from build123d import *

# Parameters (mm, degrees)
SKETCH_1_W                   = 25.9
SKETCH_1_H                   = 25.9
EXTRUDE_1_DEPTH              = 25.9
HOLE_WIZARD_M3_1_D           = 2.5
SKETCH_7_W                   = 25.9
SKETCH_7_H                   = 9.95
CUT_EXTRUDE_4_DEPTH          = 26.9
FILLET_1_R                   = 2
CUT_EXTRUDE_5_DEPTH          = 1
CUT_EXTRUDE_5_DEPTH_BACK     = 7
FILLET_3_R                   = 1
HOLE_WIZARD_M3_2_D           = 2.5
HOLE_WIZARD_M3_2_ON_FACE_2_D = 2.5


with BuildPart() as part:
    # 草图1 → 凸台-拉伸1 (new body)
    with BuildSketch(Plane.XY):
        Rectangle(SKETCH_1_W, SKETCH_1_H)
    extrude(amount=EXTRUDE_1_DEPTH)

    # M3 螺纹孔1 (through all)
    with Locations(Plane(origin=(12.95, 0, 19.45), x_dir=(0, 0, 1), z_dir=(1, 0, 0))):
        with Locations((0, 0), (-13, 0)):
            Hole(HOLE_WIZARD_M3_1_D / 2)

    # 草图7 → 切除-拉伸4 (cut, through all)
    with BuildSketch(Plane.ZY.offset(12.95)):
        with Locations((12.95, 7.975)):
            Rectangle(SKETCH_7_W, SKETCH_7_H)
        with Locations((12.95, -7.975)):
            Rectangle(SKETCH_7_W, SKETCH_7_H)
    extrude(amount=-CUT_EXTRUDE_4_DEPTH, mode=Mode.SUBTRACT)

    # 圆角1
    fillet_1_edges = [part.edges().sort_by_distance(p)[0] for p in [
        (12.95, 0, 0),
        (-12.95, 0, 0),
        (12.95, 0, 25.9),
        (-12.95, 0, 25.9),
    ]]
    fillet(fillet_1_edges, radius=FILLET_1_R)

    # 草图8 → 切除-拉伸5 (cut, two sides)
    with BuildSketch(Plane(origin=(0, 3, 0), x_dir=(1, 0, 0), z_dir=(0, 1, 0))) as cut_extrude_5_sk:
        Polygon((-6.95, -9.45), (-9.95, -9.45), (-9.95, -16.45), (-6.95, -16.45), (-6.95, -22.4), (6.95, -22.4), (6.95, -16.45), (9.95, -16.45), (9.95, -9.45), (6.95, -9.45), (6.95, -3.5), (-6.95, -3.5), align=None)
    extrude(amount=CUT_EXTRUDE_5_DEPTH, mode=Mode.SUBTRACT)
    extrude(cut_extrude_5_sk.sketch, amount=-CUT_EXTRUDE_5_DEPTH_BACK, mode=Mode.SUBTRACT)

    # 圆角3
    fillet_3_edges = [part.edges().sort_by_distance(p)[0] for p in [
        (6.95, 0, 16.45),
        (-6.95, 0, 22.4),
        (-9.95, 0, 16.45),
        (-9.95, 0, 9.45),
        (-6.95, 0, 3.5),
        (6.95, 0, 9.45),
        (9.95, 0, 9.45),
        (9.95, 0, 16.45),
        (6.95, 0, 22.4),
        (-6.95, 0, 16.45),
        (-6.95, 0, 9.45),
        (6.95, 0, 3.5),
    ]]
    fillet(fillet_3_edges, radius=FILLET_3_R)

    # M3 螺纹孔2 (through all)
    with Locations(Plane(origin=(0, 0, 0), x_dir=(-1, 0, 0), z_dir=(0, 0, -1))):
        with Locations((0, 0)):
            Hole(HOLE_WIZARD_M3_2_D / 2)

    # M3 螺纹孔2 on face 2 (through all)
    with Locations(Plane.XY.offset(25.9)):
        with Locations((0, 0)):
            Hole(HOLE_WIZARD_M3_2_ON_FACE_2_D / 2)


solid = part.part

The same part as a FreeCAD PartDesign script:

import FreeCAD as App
import Part
import Sketcher
from FreeCAD import Vector


def edges_at(feature, points):
    """Names of the edges that pass closest to the given points."""
    edges = feature.Shape.Edges
    near = lambda p: min(range(len(edges)), key=lambda i: edges[i].distToShape(Part.Vertex(*p))[0])
    return sorted({f"Edge{near(p) + 1}" for p in points})


def add_polygon(sketch, points):
    """Adds a closed chain of lines whose ends are joined by coincident constraints."""
    first, n = sketch.GeometryCount, len(points)
    for a, b in zip(points, points[1:] + points[:1]):
        sketch.addGeometry(Part.LineSegment(App.Vector(*a, 0), App.Vector(*b, 0)), False)
    for i in range(n):
        sketch.addConstraint(Sketcher.Constraint("Coincident", first + i, 2, first + (i + 1) % n, 1))

doc = App.newDocument("Part")
body = doc.addObject("PartDesign::Body", "Body")

sketch1 = doc.addObject("Sketcher::SketchObject", "Sketch")
body.addObject(sketch1)
sketch1.AttachmentSupport = (doc.XY_Plane, [""])
sketch1.MapMode = "FlatFace"
add_polygon(sketch1, [(-12.95, 12.95), (-12.95, -12.95), (12.95, -12.95), (12.95, 12.95)])
sketch1.addConstraint([
    Sketcher.Constraint("Vertical", 0),
    Sketcher.Constraint("Horizontal", 1),
    Sketcher.Constraint("Vertical", 2),
    Sketcher.Constraint("Horizontal", 3),
    Sketcher.Constraint("Symmetric", 0, 2, 2, 2, -1, 1),
    Sketcher.Constraint("Equal", 3, 0),
    Sketcher.Constraint("DistanceX", 1, 1, 1, 2, 25.9),
])
pad1 = doc.addObject("PartDesign::Pad", "Pad")
body.addObject(pad1)
pad1.Profile = sketch1
pad1.Length = 25.9

sketch2 = doc.addObject("Sketcher::SketchObject", "Sketch001")
body.addObject(sketch2)
sketch2.AttachmentSupport = (doc.YZ_Plane, [""])
sketch2.MapMode = "FlatFace"
sketch2.AttachmentOffset = App.Placement(Vector(0, 0, 12.95), App.Rotation())
sketch2.addGeometry([
    Part.Circle(Vector(0, 19.45, 0), Vector(0, 0, 1), 1.25),
    Part.Circle(Vector(0, 6.45, 0), Vector(0, 0, 1), 1.25),
], False)
sketch2.addConstraint([
    Sketcher.Constraint("Equal", 0, 1),
    Sketcher.Constraint("PointOnObject", 0, 3, -2),
    Sketcher.Constraint("PointOnObject", 1, 3, -2),
    Sketcher.Constraint("Diameter", 0, 2.5),
    Sketcher.Constraint("DistanceY", 1, 3, 0, 3, 13.0),
    Sketcher.Constraint("DistanceY", -1, 1, 0, 3, 19.45),
])
doc.recompute()
hole = doc.addObject("PartDesign::Hole", "Hole")
body.addObject(hole)
hole.Profile = sketch2
hole.ThreadType = "None"
hole.Diameter = 2.5
hole.DepthType = "ThroughAll"

sketch3 = doc.addObject("Sketcher::SketchObject", "Sketch002")
body.addObject(sketch3)
sketch3.AttachmentSupport = (doc.YZ_Plane, [""])
sketch3.MapMode = "FlatFace"
sketch3.AttachmentOffset = App.Placement(Vector(0, 0, -12.95), App.Rotation())
add_polygon(sketch3, [(12.95, 0), (3, 0), (3, 25.9), (12.95, 25.9)])
add_polygon(sketch3, [(-3, 0), (-12.95, 0), (-12.95, 25.9), (-3, 25.9)])
sketch3.addConstraint([
    Sketcher.Constraint("Horizontal", 0),
    Sketcher.Constraint("Vertical", 1),
    Sketcher.Constraint("Horizontal", 2),
    Sketcher.Constraint("Vertical", 3),
    Sketcher.Constraint("Horizontal", 4),
    Sketcher.Constraint("Vertical", 5),
    Sketcher.Constraint("Horizontal", 6),
    Sketcher.Constraint("Vertical", 7),
    Sketcher.Constraint("Symmetric", 3, 2, 4, 2, -1, 1),
    Sketcher.Constraint("Symmetric", 1, 2, 6, 2, -2),
    Sketcher.Constraint("PointOnObject", 0, 2, -1),
    Sketcher.Constraint("DistanceY", 1, 1, 1, 2, 25.9),
    Sketcher.Constraint("DistanceX", -1, 1, 0, 2, 3.0),
    Sketcher.Constraint("DistanceX", 0, 2, 0, 1, 9.95),
])
pocket1 = doc.addObject("PartDesign::Pocket", "Pocket")
body.addObject(pocket1)
pocket1.Profile = sketch3
pocket1.Type = "ThroughAll"
pocket1.Reversed = True
doc.recompute()

fillet = doc.addObject("PartDesign::Fillet", "Fillet")
body.addObject(fillet)
fillet.Base = (pocket1, edges_at(pocket1, [
    (12.95, 0, 0),
    (-12.95, 0, 0),
    (12.95, 0, 25.9),
    (-12.95, 0, 25.9),
]))
fillet.Radius = 2

sketch4 = doc.addObject("Sketcher::SketchObject", "Sketch003")
body.addObject(sketch4)
sketch4.AttachmentSupport = (doc.XZ_Plane, [""])
sketch4.MapMode = "FlatFace"
sketch4.AttachmentOffset = App.Placement(Vector(0, 0, -3), App.Rotation())
add_polygon(sketch4, [(-6.95, 9.45), (-9.95, 9.45), (-9.95, 16.45), (-6.95, 16.45), (-6.95, 22.4), (6.95, 22.4), (6.95, 16.45), (9.95, 16.45), (9.95, 9.45), (6.95, 9.45), (6.95, 3.5), (-6.95, 3.5)])
sketch4.addConstraint([
    Sketcher.Constraint("Horizontal", 0),
    Sketcher.Constraint("Vertical", 1),
    Sketcher.Constraint("Horizontal", 2),
    Sketcher.Constraint("Vertical", 3),
    Sketcher.Constraint("Horizontal", 4),
    Sketcher.Constraint("Vertical", 5),
    Sketcher.Constraint("Horizontal", 6),
    Sketcher.Constraint("Vertical", 7),
    Sketcher.Constraint("Horizontal", 8),
    Sketcher.Constraint("Vertical", 9),
    Sketcher.Constraint("Horizontal", 10),
    Sketcher.Constraint("Vertical", 11),
    Sketcher.Constraint("Symmetric", 2, 2, 5, 2, -2),
    Sketcher.Constraint("Symmetric", 0, 2, 7, 2, -2),
    Sketcher.Constraint("Vertical", 5, 2, 8, 2),
    Sketcher.Constraint("Vertical", 3, 2, 10, 2),
    Sketcher.Constraint("Equal", 5, 9),
    Sketcher.Constraint("DistanceX", 0, 2, 0, 1, 3.0),
    Sketcher.Constraint("DistanceY", 1, 1, 1, 2, 7.0),
    Sketcher.Constraint("DistanceX", 4, 1, 4, 2, 13.9),
    Sketcher.Constraint("DistanceY", 3, 1, 3, 2, 5.95),
    Sketcher.Constraint("DistanceY", -1, 1, 3, 2, 22.4),
])
pocket2 = doc.addObject("PartDesign::Pocket", "Pocket001")
body.addObject(pocket2)
pocket2.Profile = sketch4
pocket2.Type = "ThroughAll"
pocket2.Midplane = True
doc.recompute()

fillet2 = doc.addObject("PartDesign::Fillet", "Fillet001")
body.addObject(fillet2)
fillet2.Base = (pocket2, edges_at(pocket2, [
    (6.95, 0, 16.45),
    (-6.95, 0, 22.4),
    (-9.95, 0, 16.45),
    (-9.95, 0, 9.45),
    (-6.95, 0, 3.5),
    (6.95, 0, 9.45),
    (9.95, 0, 9.45),
    (9.95, 0, 16.45),
    (6.95, 0, 22.4),
    (-6.95, 0, 16.45),
    (-6.95, 0, 9.45),
    (6.95, 0, 3.5),
]))
fillet2.Radius = 1

sketch5 = doc.addObject("Sketcher::SketchObject", "Sketch004")
body.addObject(sketch5)
sketch5.AttachmentSupport = (doc.XY_Plane, [""])
sketch5.MapMode = "FlatFace"
sketch5.addGeometry(Part.Circle(Vector(0, 0, 0), Vector(0, 0, 1), 1.25), False)
sketch5.addConstraint([
    Sketcher.Constraint("Coincident", 0, 3, -1, 1),
    Sketcher.Constraint("Diameter", 0, 2.5),
])
doc.recompute()
hole2 = doc.addObject("PartDesign::Hole", "Hole001")
body.addObject(hole2)
hole2.Profile = sketch5
hole2.ThreadType = "None"
hole2.Diameter = 2.5
hole2.DepthType = "ThroughAll"
hole2.Reversed = True

sketch6 = doc.addObject("Sketcher::SketchObject", "Sketch005")
body.addObject(sketch6)
sketch6.AttachmentSupport = (doc.XY_Plane, [""])
sketch6.MapMode = "FlatFace"
sketch6.AttachmentOffset = App.Placement(Vector(0, 0, 25.9), App.Rotation())
sketch6.addGeometry(Part.Circle(Vector(0, 0, 0), Vector(0, 0, 1), 1.25), False)
sketch6.addConstraint([
    Sketcher.Constraint("Coincident", 0, 3, -1, 1),
    Sketcher.Constraint("Diameter", 0, 2.5),
])
doc.recompute()
hole3 = doc.addObject("PartDesign::Hole", "Hole002")
body.addObject(hole3)
hole3.Profile = sketch6
hole3.ThreadType = "None"
hole3.Diameter = 2.5
hole3.DepthType = "ThroughAll"

doc.recompute()
